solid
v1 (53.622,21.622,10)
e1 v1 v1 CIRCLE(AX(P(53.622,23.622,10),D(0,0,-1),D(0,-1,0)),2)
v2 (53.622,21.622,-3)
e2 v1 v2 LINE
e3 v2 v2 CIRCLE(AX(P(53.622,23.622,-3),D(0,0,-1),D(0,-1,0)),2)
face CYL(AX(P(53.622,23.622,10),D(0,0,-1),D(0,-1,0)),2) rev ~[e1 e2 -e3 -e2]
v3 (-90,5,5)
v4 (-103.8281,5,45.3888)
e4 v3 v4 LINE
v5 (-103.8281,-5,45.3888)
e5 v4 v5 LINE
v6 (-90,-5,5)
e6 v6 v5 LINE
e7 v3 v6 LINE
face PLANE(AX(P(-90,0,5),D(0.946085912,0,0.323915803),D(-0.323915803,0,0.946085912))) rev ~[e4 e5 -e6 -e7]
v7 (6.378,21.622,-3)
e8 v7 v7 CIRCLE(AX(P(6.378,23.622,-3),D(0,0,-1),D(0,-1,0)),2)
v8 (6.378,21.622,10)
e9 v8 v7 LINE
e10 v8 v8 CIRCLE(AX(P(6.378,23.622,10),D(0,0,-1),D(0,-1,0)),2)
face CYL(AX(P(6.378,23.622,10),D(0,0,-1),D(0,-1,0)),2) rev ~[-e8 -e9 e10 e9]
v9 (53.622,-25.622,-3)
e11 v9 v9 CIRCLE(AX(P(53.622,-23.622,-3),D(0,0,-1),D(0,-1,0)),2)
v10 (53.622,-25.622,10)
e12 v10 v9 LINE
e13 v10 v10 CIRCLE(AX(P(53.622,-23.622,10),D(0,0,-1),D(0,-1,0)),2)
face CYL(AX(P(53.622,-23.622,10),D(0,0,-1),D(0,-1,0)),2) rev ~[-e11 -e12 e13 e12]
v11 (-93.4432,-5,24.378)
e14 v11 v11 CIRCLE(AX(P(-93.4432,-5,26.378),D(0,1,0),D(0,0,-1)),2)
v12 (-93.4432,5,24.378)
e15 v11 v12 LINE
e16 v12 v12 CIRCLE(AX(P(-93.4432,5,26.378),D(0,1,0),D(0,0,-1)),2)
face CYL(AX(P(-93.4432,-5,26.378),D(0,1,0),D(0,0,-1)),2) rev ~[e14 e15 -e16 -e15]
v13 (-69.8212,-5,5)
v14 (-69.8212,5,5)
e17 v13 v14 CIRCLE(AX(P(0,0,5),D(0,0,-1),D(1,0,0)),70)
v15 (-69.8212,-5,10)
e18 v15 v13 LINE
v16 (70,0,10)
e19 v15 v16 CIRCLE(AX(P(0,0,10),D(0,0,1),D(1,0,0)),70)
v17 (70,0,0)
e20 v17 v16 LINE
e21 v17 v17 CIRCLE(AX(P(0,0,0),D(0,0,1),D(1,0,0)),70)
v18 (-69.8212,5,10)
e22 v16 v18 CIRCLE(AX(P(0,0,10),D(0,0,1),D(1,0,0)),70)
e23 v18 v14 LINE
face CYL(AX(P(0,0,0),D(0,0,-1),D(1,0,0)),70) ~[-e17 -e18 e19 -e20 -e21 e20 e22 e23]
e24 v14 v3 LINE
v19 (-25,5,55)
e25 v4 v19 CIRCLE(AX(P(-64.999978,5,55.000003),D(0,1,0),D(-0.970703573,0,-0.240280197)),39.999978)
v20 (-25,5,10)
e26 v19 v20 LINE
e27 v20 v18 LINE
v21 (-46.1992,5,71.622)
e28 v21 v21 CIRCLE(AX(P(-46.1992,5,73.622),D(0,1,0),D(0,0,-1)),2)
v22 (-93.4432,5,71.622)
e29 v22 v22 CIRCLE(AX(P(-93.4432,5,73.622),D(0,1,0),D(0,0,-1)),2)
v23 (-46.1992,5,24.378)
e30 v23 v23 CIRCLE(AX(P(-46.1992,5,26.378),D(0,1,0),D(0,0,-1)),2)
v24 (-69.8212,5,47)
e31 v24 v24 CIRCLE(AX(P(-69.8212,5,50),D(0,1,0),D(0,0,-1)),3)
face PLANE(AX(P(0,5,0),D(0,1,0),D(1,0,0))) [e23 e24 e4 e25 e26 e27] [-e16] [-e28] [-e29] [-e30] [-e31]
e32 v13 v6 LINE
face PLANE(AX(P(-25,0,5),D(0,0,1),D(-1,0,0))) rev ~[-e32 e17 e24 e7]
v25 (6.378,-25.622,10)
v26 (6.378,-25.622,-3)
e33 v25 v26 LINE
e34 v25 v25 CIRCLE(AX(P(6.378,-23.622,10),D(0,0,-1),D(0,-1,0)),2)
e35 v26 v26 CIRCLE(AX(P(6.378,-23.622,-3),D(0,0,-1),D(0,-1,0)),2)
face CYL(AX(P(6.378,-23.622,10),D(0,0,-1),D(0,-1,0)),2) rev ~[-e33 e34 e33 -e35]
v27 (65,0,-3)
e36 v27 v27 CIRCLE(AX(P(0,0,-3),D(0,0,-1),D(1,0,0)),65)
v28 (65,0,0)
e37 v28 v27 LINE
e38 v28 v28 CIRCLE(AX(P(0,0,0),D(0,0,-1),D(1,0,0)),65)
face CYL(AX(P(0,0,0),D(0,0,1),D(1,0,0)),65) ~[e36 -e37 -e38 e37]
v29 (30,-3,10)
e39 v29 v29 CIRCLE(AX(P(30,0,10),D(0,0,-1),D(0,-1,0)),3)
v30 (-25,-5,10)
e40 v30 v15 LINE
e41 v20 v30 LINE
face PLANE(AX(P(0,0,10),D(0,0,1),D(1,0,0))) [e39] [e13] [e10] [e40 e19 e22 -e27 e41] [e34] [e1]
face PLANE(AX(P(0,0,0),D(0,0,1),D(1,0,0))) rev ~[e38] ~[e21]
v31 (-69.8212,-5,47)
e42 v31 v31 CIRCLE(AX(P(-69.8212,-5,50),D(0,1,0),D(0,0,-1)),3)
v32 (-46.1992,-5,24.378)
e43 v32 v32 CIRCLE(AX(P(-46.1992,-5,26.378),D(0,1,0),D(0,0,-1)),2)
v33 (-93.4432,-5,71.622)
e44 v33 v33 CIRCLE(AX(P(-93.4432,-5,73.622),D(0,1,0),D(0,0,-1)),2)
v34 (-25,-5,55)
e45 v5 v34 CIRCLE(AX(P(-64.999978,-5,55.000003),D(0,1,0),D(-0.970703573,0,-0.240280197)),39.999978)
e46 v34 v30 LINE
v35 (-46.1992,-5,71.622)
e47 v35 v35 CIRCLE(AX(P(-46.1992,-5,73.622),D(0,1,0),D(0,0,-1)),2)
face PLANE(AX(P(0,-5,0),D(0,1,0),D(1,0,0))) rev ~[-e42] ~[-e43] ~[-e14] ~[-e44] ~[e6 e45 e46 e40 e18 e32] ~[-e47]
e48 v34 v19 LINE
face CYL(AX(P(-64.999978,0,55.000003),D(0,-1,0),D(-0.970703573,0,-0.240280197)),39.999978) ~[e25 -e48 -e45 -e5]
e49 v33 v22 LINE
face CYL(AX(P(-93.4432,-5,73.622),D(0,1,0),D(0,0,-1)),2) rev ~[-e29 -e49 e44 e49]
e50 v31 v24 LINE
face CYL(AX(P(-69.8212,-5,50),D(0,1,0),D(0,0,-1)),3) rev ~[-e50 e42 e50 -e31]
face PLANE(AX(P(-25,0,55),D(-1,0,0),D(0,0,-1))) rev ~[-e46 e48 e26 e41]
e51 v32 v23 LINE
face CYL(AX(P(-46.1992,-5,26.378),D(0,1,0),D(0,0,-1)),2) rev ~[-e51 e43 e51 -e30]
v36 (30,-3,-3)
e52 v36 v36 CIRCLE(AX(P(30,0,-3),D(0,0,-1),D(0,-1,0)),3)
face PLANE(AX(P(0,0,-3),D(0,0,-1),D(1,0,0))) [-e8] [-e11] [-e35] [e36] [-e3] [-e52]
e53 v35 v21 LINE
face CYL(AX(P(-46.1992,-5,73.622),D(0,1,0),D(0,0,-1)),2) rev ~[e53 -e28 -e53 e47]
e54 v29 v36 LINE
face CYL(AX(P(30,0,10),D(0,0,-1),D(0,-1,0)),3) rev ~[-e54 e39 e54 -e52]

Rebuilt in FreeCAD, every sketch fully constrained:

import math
import FreeCAD as App
import Part
import Sketcher

V = App.Vector
Q = App.Units.Quantity

doc = App.newDocument("Part")
params = doc.addObject("Spreadsheet::Sheet", "Params")
for row, (alias, value) in enumerate([
    ("sketch1_diameter", "140 mm"),
    ("pad1_length", "10 mm"),
    ("sketch2_diameter", "130 mm"),
    ("pad2_length", "3 mm"),
    ("sketch3_radius", "40 mm"),
    ("sketch3_width", "65 mm"),
    ("sketch3_height", "50 mm"),
    ("pad3_length", "10 mm"),
    ("sketch4_diameter", "4 mm"),
    ("hole_diameter", "4 mm"),
    ("hole_depth", "15 mm"),
    ("sketch5_diameter", "6 mm"),
    ("hole2_diameter", "6 mm"),
    ("hole2_depth", "15 mm"),
    ("sketch6_diameter", "4 mm"),
    ("hole3_diameter", "4 mm"),
    ("hole3_depth", "15 mm"),
    ("sketch7_diameter", "6 mm"),
    ("hole4_diameter", "6 mm"),
    ("hole4_depth", "15 mm"),
], start=1):
    params.set(f"A{row}", alias)
    params.set(f"B{row}", "=" + value)
    params.setAlias(f"B{row}", alias)

body = doc.addObject("PartDesign::Body", "Body")

# Sketch on XY plane
sketch1 = doc.addObject("Sketcher::SketchObject", "Sketch")
body.addObject(sketch1)
sketch1.AttachmentSupport = (doc.XY_Plane, [""])
sketch1.MapMode = "FlatFace"
sketch1.addGeometry(Part.Circle(V(0, 0, 0), V(0, 0, 1), 70), False)
sketch1.addConstraint(Sketcher.Constraint("Coincident", 0, 3, -1, 1))
sketch1.addConstraint(Sketcher.Constraint("Diameter", 0, Q("140 mm")))
sketch1.setExpression("Constraints[1]", "Params.sketch1_diameter")
pad1 = doc.addObject("PartDesign::Pad", "Pad")
body.addObject(pad1)
pad1.Profile = sketch1
pad1.setExpression("Length", "Params.pad1_length")

# Sketch on XY plane
sketch2 = doc.addObject("Sketcher::SketchObject", "Sketch001")
body.addObject(sketch2)
sketch2.AttachmentSupport = (doc.XY_Plane, [""])
sketch2.MapMode = "FlatFace"
sketch2.addGeometry(Part.Circle(V(0, 0, 0), V(0, 0, 1), 65), False)
sketch2.addConstraint(Sketcher.Constraint("Coincident", 0, 3, -1, 1))
sketch2.addConstraint(Sketcher.Constraint("Diameter", 0, Q("130 mm")))
sketch2.setExpression("Constraints[1]", "Params.sketch2_diameter")
pad2 = doc.addObject("PartDesign::Pad", "Pad001")
body.addObject(pad2)
pad2.Profile = sketch2
pad2.setExpression("Length", "Params.pad2_length")
pad2.Reversed = True

# Sketch on XZ plane
sketch3 = doc.addObject("Sketcher::SketchObject", "Sketch002")
body.addObject(sketch3)
sketch3.AttachmentSupport = (doc.XZ_Plane, [""])
sketch3.MapMode = "FlatFace"
sketch3.addGeometry(Part.ArcOfCircle(Part.Circle(V(-65, 55, 0), V(0, 0, 1), 40), math.radians(0), math.radians(194)), False)
sketch3.addGeometry(Part.LineSegment(V(-25, 55, 0), V(-25, 5, 0)), False)
sketch3.addGeometry(Part.LineSegment(V(-25, 5, 0), V(-90, 5, 0)), False)
sketch3.addGeometry(Part.LineSegment(V(-90, 5, 0), V(-104, 45, 0)), False)
sketch3.addConstraint(Sketcher.Constraint("Tangent", 0, 1, 1, 1))
sketch3.addConstraint(Sketcher.Constraint("Coincident", 1, 2, 2, 1))
sketch3.addConstraint(Sketcher.Constraint("Coincident", 2, 2, 3, 1))
sketch3.addConstraint(Sketcher.Constraint("Coincident", 3, 2, 0, 2))
sketch3.addConstraint(Sketcher.Constraint("Vertical", 1))
sketch3.addConstraint(Sketcher.Constraint("Horizontal", 2))
sketch3.addConstraint(Sketcher.Constraint("Radius", 0, Q("40 mm")))
sketch3.addConstraint(Sketcher.Constraint("DistanceX", 2, 2, 2, 1, Q("65 mm")))
sketch3.addConstraint(Sketcher.Constraint("DistanceY", 1, 2, 1, 1, Q("50 mm")))
sketch3.addConstraint(Sketcher.Constraint("DistanceX", 0, 3, -1, 1, Q("65 mm")))
sketch3.addConstraint(Sketcher.Constraint("DistanceY", -1, 1, 1, 2, Q("5 mm")))
sketch3.addConstraint(Sketcher.Constraint("Angle", 3, Q("108.9 deg")))
sketch3.setExpression("Constraints[6]", "Params.sketch3_radius")
sketch3.setExpression("Constraints[7]", "Params.sketch3_width")
sketch3.setExpression("Constraints[8]", "Params.sketch3_height")
pad3 = doc.addObject("PartDesign::Pad", "Pad002")
body.addObject(pad3)
pad3.Profile = sketch3
pad3.setExpression("Length", "Params.pad3_length")
pad3.Midplane = True

# Sketch on XY plane
sketch4 = doc.addObject("Sketcher::SketchObject", "Sketch003")
body.addObject(sketch4)
sketch4.AttachmentSupport = (doc.XY_Plane, [""])
sketch4.MapMode = "FlatFace"
sketch4.AttachmentOffset = App.Placement(V(0, 0, 10), App.Rotation())
sketch4.addGeometry(Part.Circle(V(6.4, 23.6, 0), V(0, 0, 1), 2), False)
sketch4.addGeometry(Part.Circle(V(53.6, 23.6, 0), V(0, 0, 1), 2), False)
sketch4.addGeometry(Part.Circle(V(53.6, -23.6, 0), V(0, 0, 1), 2), False)
sketch4.addGeometry(Part.Circle(V(6.4, -23.6, 0), V(0, 0, 1), 2), False)
sketch4.addConstraint(Sketcher.Constraint("Equal", 0, 1))
sketch4.addConstraint(Sketcher.Constraint("Equal", 1, 2))
sketch4.addConstraint(Sketcher.Constraint("Equal", 2, 3))
sketch4.addConstraint(Sketcher.Constraint("Symmetric", 1, 3, 2, 3, -1))
sketch4.addConstraint(Sketcher.Constraint("Symmetric", 0, 3, 3, 3, -1))
sketch4.addConstraint(Sketcher.Constraint("Horizontal", 0, 3, 1, 3))
sketch4.addConstraint(Sketcher.Constraint("Diameter", 0, Q("4 mm")))
sketch4.addConstraint(Sketcher.Constraint("DistanceX", -1, 1, 0, 3, Q("6.378 mm")))
sketch4.addConstraint(Sketcher.Constraint("DistanceY", -1, 1, 0, 3, Q("23.622 mm")))
sketch4.addConstraint(Sketcher.Constraint("DistanceX", -1, 1, 1, 3, Q("53.622 mm")))
sketch4.setExpression("Constraints[6]", "Params.sketch4_diameter")
doc.recompute()
hole = doc.addObject("PartDesign::Hole", "Hole")
body.addObject(hole)
hole.Profile = sketch4
hole.ThreadType = "None"
hole.setExpression("Diameter", "Params.hole_diameter")
hole.DepthType = "Dimension"
hole.setExpression("Depth", "Params.hole_depth")
hole.DrillPoint = "Angled"
hole.DrillPointAngle = 118

# Sketch on XY plane
sketch5 = doc.addObject("Sketcher::SketchObject", "Sketch004")
body.addObject(sketch5)
sketch5.AttachmentSupport = (doc.XY_Plane, [""])
sketch5.MapMode = "FlatFace"
sketch5.AttachmentOffset = App.Placement(V(0, 0, 10), App.Rotation())
sketch5.addGeometry(Part.Circle(V(30, 0, 0), V(0, 0, 1), 3), False)
sketch5.addConstraint(Sketcher.Constraint("PointOnObject", 0, 3, -1))
sketch5.addConstraint(Sketcher.Constraint("Diameter", 0, Q("6 mm")))
sketch5.addConstraint(Sketcher.Constraint("DistanceX", -1, 1, 0, 3, Q("30 mm")))
sketch5.setExpression("Constraints[1]", "Params.sketch5_diameter")
doc.recompute()
hole2 = doc.addObject("PartDesign::Hole", "Hole001")
body.addObject(hole2)
hole2.Profile = sketch5
hole2.ThreadType = "None"
hole2.setExpression("Diameter", "Params.hole2_diameter")
hole2.DepthType = "Dimension"
hole2.setExpression("Depth", "Params.hole2_depth")
hole2.DrillPoint = "Angled"
hole2.DrillPointAngle = 118

# Sketch on XZ plane
sketch6 = doc.addObject("Sketcher::SketchObject", "Sketch005")
body.addObject(sketch6)
sketch6.AttachmentSupport = (doc.XZ_Plane, [""])
sketch6.MapMode = "FlatFace"
sketch6.AttachmentOffset = App.Placement(V(0, 0, 5), App.Rotation())
sketch6.addGeometry(Part.Circle(V(-93.4, 73.6, 0), V(0, 0, 1), 2), False)
sketch6.addGeometry(Part.Circle(V(-46.2, 73.6, 0), V(0, 0, 1), 2), False)
sketch6.addGeometry(Part.Circle(V(-93.4, 26.4, 0), V(0, 0, 1), 2), False)
sketch6.addGeometry(Part.Circle(V(-46.2, 26.4, 0), V(0, 0, 1), 2), False)
sketch6.addConstraint(Sketcher.Constraint("Equal", 0, 1))
sketch6.addConstraint(Sketcher.Constraint("Equal", 1, 2))
sketch6.addConstraint(Sketcher.Constraint("Equal", 2, 3))
sketch6.addConstraint(Sketcher.Constraint("Horizontal", 0, 3, 1, 3))
sketch6.addConstraint(Sketcher.Constraint("Horizontal", 2, 3, 3, 3))
sketch6.addConstraint(Sketcher.Constraint("Vertical", 0, 3, 2, 3))
sketch6.addConstraint(Sketcher.Constraint("Vertical", 1, 3, 3, 3))
sketch6.addConstraint(Sketcher.Constraint("Diameter", 0, Q("4 mm")))
sketch6.addConstraint(Sketcher.Constraint("DistanceY", -1, 1, 0, 3, Q("73.622 mm")))
sketch6.addConstraint(Sketcher.Constraint("DistanceY", -1, 1, 2, 3, Q("26.378 mm")))
sketch6.addConstraint(Sketcher.Constraint("DistanceX", 0, 3, 1, 3, Q("47.244 mm")))
sketch6.addConstraint(Sketcher.Constraint("DistanceX", 0, 3, -1, 1, Q("93.4432 mm")))
sketch6.setExpression("Constraints[7]", "Params.sketch6_diameter")
doc.recompute()
hole3 = doc.addObject("PartDesign::Hole", "Hole002")
body.addObject(hole3)
hole3.Profile = sketch6
hole3.ThreadType = "None"
hole3.setExpression("Diameter", "Params.hole3_diameter")
hole3.DepthType = "Dimension"
hole3.setExpression("Depth", "Params.hole3_depth")
hole3.DrillPoint = "Angled"
hole3.DrillPointAngle = 118

# Sketch on XZ plane
sketch7 = doc.addObject("Sketcher::SketchObject", "Sketch006")
body.addObject(sketch7)
sketch7.AttachmentSupport = (doc.XZ_Plane, [""])
sketch7.MapMode = "FlatFace"
sketch7.AttachmentOffset = App.Placement(V(0, 0, 5), App.Rotation())
sketch7.addGeometry(Part.Circle(V(-69.8, 50, 0), V(0, 0, 1), 3), False)
sketch7.addConstraint(Sketcher.Constraint("Diameter", 0, Q("6 mm")))
sketch7.addConstraint(Sketcher.Constraint("DistanceY", -1, 1, 0, 3, Q("50 mm")))
sketch7.addConstraint(Sketcher.Constraint("DistanceX", 0, 3, -1, 1, Q("69.8212 mm")))
sketch7.setExpression("Constraints[0]", "Params.sketch7_diameter")
doc.recompute()
hole4 = doc.addObject("PartDesign::Hole", "Hole003")
body.addObject(hole4)
hole4.Profile = sketch7
hole4.ThreadType = "None"
hole4.setExpression("Diameter", "Params.hole4_diameter")
hole4.DepthType = "Dimension"
hole4.setExpression("Depth", "Params.hole4_depth")
hole4.DrillPoint = "Angled"
hole4.DrillPointAngle = 118

doc.recompute()
